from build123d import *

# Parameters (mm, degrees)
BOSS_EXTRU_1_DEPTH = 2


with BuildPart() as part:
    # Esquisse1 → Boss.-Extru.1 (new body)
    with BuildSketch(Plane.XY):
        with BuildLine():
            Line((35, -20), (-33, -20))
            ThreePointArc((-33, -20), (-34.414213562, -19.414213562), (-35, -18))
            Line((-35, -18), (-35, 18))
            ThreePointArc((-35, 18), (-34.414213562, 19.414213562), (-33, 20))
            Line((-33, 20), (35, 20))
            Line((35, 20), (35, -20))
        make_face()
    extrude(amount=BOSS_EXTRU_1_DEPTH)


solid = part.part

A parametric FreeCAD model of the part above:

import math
import FreeCAD as App
import Part
import Sketcher
Q = App.Units.Quantity

doc = App.newDocument("Part")
body = doc.addObject("PartDesign::Body", "Body")

# Sketch on XY plane
sketch1 = body.newObject("Sketcher::SketchObject", "Sketch")
sketch1.AttachmentSupport = (doc.getObject("XY_Plane"), [""])
sketch1.MapMode = "FlatFace"
sketch1.addGeometry(Part.LineSegment(App.Vector(-33, -20, 0), App.Vector(35, -20, 0)), False)
sketch1.addGeometry(Part.LineSegment(App.Vector(35, -20, 0), App.Vector(35, 20, 0)), False)
sketch1.addGeometry(Part.LineSegment(App.Vector(35, 20, 0), App.Vector(-33, 20, 0)), False)
sketch1.addGeometry(Part.ArcOfCircle(Part.Circle(App.Vector(-33, 18, 0), App.Vector(0, 0, 1), 2), math.radians(90), math.radians(180)), False)
sketch1.addGeometry(Part.LineSegment(App.Vector(-35, 18, 0), App.Vector(-35, -18, 0)), False)
sketch1.addGeometry(Part.ArcOfCircle(Part.Circle(App.Vector(-33, -18, 0), App.Vector(0, 0, 1), 2), math.radians(-180), math.radians(-90)), False)
sketch1.addConstraint(Sketcher.Constraint("Coincident", 0, 2, 1, 1))
sketch1.addConstraint(Sketcher.Constraint("Coincident", 1, 2, 2, 1))
sketch1.addConstraint(Sketcher.Constraint("Tangent", 2, 2, 3, 1))
sketch1.addConstraint(Sketcher.Constraint("Tangent", 3, 2, 4, 1))
sketch1.addConstraint(Sketcher.Constraint("Tangent", 4, 2, 5, 1))
sketch1.addConstraint(Sketcher.Constraint("Tangent", 5, 2, 0, 1))
sketch1.addConstraint(Sketcher.Constraint("Horizontal", 0))
sketch1.addConstraint(Sketcher.Constraint("Vertical", 1))
sketch1.addConstraint(Sketcher.Constraint("Horizontal", 2))
sketch1.addConstraint(Sketcher.Constraint("Vertical", 4))
sketch1.addConstraint(Sketcher.Constraint("Equal", 3, 5))
sketch1.addConstraint(Sketcher.Constraint("Radius", 3, Q("2 mm")))
sketch1.addConstraint(Sketcher.Constraint("DistanceX", 0, 1, 0, 2, Q("68 mm")))
sketch1.addConstraint(Sketcher.Constraint("DistanceY", 1, 1, 1, 2, Q("40 mm")))
sketch1.addConstraint(Sketcher.Constraint("DistanceX", 3, 3, -1, 1, Q("33 mm")))
sketch1.addConstraint(Sketcher.Constraint("DistanceY", -1, 1, 3, 3, Q("18 mm")))
pad1 = body.newObject("PartDesign::Pad", "Pad")
pad1.Profile = sketch1
pad1.Length = 2

doc.recompute()
